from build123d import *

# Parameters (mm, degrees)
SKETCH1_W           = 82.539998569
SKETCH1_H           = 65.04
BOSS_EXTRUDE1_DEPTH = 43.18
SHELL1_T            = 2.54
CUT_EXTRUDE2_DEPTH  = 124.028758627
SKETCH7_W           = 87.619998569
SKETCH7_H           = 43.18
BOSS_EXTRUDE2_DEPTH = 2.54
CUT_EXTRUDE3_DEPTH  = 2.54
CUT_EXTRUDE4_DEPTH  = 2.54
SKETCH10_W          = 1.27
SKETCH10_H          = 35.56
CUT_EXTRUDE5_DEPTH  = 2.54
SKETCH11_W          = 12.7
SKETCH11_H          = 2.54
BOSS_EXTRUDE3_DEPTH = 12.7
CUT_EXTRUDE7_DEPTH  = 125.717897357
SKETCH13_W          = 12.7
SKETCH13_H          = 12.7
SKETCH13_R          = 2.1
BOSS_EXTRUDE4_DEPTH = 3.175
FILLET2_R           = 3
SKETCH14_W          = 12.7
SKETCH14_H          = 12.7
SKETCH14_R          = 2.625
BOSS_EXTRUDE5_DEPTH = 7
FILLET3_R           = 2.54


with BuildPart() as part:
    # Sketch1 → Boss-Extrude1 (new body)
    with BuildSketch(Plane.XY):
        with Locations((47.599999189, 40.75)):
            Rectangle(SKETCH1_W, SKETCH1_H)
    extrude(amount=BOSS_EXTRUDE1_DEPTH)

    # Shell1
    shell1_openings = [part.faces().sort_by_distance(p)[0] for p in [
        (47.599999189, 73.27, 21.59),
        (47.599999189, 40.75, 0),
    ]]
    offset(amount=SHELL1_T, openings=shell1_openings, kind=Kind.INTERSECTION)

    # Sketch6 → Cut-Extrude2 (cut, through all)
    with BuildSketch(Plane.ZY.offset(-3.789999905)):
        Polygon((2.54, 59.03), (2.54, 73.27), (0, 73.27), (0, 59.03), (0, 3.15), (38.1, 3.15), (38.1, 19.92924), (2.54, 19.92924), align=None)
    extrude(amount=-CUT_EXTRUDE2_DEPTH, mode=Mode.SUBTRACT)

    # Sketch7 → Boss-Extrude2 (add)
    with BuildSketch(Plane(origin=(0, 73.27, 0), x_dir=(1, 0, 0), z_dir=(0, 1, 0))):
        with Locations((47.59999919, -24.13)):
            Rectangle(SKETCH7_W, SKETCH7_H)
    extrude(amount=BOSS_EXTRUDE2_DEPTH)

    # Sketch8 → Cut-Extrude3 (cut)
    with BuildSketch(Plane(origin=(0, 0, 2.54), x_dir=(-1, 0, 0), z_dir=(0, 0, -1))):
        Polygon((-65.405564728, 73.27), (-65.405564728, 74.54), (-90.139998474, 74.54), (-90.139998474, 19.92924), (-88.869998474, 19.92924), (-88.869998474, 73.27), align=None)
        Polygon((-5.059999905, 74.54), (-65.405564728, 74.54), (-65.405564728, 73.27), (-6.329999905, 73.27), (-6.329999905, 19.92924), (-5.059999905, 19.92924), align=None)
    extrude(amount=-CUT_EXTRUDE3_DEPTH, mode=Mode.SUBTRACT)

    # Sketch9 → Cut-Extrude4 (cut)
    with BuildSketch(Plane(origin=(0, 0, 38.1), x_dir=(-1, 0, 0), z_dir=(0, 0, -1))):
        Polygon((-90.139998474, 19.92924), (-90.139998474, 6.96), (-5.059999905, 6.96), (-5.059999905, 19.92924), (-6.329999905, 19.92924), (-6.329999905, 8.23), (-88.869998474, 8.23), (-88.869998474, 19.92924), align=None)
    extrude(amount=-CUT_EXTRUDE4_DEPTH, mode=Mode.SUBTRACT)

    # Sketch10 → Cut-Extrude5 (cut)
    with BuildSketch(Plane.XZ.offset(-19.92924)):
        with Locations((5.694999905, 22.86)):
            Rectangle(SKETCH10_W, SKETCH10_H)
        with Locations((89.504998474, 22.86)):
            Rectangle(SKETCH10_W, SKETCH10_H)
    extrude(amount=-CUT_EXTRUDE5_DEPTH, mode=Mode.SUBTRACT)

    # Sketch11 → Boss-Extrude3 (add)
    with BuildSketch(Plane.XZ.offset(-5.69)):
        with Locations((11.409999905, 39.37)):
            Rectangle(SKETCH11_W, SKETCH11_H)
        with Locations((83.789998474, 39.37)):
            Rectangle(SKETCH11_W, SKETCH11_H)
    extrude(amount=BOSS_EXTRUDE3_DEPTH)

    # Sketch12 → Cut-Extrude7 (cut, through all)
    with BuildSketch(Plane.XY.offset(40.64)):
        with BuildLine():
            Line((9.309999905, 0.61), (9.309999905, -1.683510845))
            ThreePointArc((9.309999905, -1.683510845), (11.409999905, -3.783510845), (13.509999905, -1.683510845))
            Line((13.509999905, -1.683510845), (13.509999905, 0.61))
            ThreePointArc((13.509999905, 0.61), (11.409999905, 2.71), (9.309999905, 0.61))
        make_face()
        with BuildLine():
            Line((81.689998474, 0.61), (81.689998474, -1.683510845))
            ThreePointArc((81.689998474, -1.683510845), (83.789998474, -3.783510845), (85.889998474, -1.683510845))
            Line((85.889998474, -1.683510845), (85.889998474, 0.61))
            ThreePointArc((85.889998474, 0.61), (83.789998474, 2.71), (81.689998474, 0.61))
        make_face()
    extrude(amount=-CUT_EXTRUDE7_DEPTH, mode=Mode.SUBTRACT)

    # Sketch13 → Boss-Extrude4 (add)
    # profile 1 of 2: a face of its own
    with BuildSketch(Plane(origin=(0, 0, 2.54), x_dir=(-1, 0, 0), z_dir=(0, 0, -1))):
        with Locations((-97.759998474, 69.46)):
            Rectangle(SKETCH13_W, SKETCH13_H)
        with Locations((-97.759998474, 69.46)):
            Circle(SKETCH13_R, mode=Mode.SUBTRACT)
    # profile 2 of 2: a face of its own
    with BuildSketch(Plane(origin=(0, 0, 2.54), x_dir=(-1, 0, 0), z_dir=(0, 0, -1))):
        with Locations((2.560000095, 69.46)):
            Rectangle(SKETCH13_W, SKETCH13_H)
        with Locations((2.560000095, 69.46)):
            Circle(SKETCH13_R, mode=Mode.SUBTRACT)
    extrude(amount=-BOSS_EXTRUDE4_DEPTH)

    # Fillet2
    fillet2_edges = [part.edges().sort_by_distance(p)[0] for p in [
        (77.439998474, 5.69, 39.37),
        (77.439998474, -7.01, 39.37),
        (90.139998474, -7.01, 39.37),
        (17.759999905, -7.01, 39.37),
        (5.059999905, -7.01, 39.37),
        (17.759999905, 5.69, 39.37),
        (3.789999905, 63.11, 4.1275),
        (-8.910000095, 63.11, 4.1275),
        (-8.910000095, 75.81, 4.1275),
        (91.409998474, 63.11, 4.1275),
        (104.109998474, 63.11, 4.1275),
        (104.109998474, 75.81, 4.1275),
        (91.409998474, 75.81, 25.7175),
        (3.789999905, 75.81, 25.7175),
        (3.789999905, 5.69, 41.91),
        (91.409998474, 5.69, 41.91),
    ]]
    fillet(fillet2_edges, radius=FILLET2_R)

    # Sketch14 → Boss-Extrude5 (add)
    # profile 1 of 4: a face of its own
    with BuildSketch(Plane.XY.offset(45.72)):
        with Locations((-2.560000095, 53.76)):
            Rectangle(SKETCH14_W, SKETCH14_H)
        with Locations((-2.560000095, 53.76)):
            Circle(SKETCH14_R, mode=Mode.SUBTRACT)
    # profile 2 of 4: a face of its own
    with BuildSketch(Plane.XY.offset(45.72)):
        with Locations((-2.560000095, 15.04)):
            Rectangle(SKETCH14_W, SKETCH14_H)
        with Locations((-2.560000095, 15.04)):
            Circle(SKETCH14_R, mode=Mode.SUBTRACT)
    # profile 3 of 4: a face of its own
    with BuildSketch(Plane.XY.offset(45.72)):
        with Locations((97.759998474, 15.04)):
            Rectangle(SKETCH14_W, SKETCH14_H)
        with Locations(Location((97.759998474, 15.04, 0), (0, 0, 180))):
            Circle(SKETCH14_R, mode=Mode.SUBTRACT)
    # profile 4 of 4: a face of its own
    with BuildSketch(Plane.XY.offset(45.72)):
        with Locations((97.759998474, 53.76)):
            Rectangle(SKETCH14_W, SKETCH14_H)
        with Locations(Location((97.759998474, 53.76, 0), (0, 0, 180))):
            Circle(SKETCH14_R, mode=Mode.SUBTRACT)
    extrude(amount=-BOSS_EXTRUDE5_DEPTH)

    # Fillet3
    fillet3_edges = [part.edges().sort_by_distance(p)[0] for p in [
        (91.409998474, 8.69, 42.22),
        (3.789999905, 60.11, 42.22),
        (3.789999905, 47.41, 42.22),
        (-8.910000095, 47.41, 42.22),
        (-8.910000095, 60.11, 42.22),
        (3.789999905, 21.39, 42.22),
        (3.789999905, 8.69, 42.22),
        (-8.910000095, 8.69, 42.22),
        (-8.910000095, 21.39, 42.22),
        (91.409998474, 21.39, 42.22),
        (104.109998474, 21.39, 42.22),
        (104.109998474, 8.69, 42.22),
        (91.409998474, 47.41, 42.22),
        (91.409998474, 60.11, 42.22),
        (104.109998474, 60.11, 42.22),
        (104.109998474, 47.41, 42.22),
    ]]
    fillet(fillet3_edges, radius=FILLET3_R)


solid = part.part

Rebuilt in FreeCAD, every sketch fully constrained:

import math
import FreeCAD as App
import Part
import Sketcher

V = App.Vector
Q = App.Units.Quantity


def edges_at(feature, points):
    """Names of the edges that pass closest to the given points."""
    edges = feature.Shape.Edges
    near = lambda p: min(range(len(edges)), key=lambda i: edges[i].distToShape(Part.Vertex(*p))[0])
    return sorted({f"Edge{near(p) + 1}" for p in points})


def faces_at(feature, points):
    """Names of the faces that lie closest to the given points."""
    faces = feature.Shape.Faces
    near = lambda p: min(range(len(faces)), key=lambda i: faces[i].distToShape(Part.Vertex(*p))[0])
    return sorted({f"Face{near(p) + 1}" for p in points})


def add_polygon(sketch, points):
    """Adds a closed chain of lines whose ends are joined by coincident constraints."""
    first, n = sketch.GeometryCount, len(points)
    for a, b in zip(points, points[1:] + points[:1]):
        sketch.addGeometry(Part.LineSegment(App.Vector(*a, 0), App.Vector(*b, 0)), False)
    for i in range(n):
        sketch.addConstraint(Sketcher.Constraint("Coincident", first + i, 2, first + (i + 1) % n, 1))

doc = App.newDocument("Part")
body = doc.addObject("PartDesign::Body", "Body")

sketch1 = body.newObject("Sketcher::SketchObject", "Sketch")
sketch1.AttachmentSupport = (doc.getObject("XY_Plane"), [""])
sketch1.MapMode = "FlatFace"
add_polygon(sketch1, [(6, 73), (6, 8), (89, 8), (89, 73)])
sketch1.addConstraint(Sketcher.Constraint("Vertical", 0))
sketch1.addConstraint(Sketcher.Constraint("Horizontal", 1))
sketch1.addConstraint(Sketcher.Constraint("Vertical", 2))
sketch1.addConstraint(Sketcher.Constraint("Horizontal", 3))
sketch1.addConstraint(Sketcher.Constraint("DistanceX", 1, 1, 1, 2, Q("82.539999 mm")))
sketch1.addConstraint(Sketcher.Constraint("DistanceY", 0, 2, 0, 1, Q("65.04 mm")))
sketch1.addConstraint(Sketcher.Constraint("DistanceX", -1, 1, 0, 2, Q("6.33 mm")))
sketch1.addConstraint(Sketcher.Constraint("DistanceY", -1, 1, 0, 2, Q("8.23 mm")))
pad1 = body.newObject("PartDesign::Pad", "Pad")
pad1.Profile = sketch1
pad1.Length = Q("1.7 in")
doc.recompute()

thickness = body.newObject("PartDesign::Thickness", "Thickness")
thickness.Base = (pad1, faces_at(pad1, [(47.6, 73.27, 21.59), (47.6, 40.75, 0)]))
thickness.Value = Q("0.1 in")
thickness.Reversed = False
thickness.Join = "Intersection"

sketch2 = body.newObject("Sketcher::SketchObject", "Sketch001")
sketch2.AttachmentSupport = (doc.getObject("YZ_Plane"), [""])
sketch2.MapMode = "FlatFace"
sketch2.AttachmentOffset = App.Placement(V(0, 0, 3.79), App.Rotation())
add_polygon(sketch2, [(73.3, 2.5), (73.3, 0), (3.1, 0), (3.1, 38.1), (19.9, 38.1), (19.9, 2.5)])
sketch2.addConstraint(Sketcher.Constraint("Vertical", 0))
sketch2.addConstraint(Sketcher.Constraint("Horizontal", 1))
sketch2.addConstraint(Sketcher.Constraint("Vertical", 2))
sketch2.addConstraint(Sketcher.Constraint("Horizontal", 3))
sketch2.addConstraint(Sketcher.Constraint("Vertical", 4))
sketch2.addConstraint(Sketcher.Constraint("Horizontal", 5))
sketch2.addConstraint(Sketcher.Constraint("PointOnObject", 0, 2, -1))
sketch2.addConstraint(Sketcher.Constraint("DistanceY", 0, 2, 0, 1, Q("0.1 in")))
sketch2.addConstraint(Sketcher.Constraint("DistanceY", 2, 1, 2, 2, Q("1.5 in")))
sketch2.addConstraint(Sketcher.Constraint("DistanceX", 3, 1, 3, 2, Q("0.6606 in")))
sketch2.addConstraint(Sketcher.Constraint("DistanceX", 1, 2, 1, 1, Q("70.12 mm")))
sketch2.addConstraint(Sketcher.Constraint("DistanceX", -1, 1, 0, 2, Q("73.27 mm")))
pocket1 = body.newObject("PartDesign::Pocket", "Pocket")
pocket1.Profile = sketch2
pocket1.Type = "ThroughAll"
pocket1.Reversed = True

sketch3 = body.newObject("Sketcher::SketchObject", "Sketch002")
sketch3.AttachmentSupport = (doc.getObject("XZ_Plane"), [""])
sketch3.MapMode = "FlatFace"
sketch3.AttachmentOffset = App.Placement(V(0, 0, -73.27), App.Rotation())
add_polygon(sketch3, [(4, 3), (4, 46), (91, 46), (91, 3)])
sketch3.addConstraint(Sketcher.Constraint("Vertical", 0))
sketch3.addConstraint(Sketcher.Constraint("Horizontal", 1))
sketch3.addConstraint(Sketcher.Constraint("Vertical", 2))
sketch3.addConstraint(Sketcher.Constraint("Horizontal", 3))
sketch3.addConstraint(Sketcher.Constraint("DistanceY", 0, 1, 0, 2, Q("1.7 in")))
sketch3.addConstraint(Sketcher.Constraint("DistanceY", -1, 1, 0, 2, Q("1.8 in")))
sketch3.addConstraint(Sketcher.Constraint("DistanceX", 1, 1, 1, 2, Q("87.619999 mm")))
sketch3.addConstraint(Sketcher.Constraint("DistanceX", -1, 1, 0, 2, Q("3.79 mm")))
pad2 = body.newObject("PartDesign::Pad", "Pad001")
pad2.Profile = sketch3
pad2.Length = Q("0.1 in")
pad2.Reversed = True

sketch4 = body.newObject("Sketcher::SketchObject", "Sketch003")
sketch4.AttachmentSupport = (doc.getObject("XY_Plane"), [""])
sketch4.MapMode = "FlatFace"
sketch4.AttachmentOffset = App.Placement(V(0, 0, 0.1 * 25.4), App.Rotation())
add_polygon(sketch4, [(90.1, 74.5), (90.1, 19.9), (88.9, 19.9), (88.9, 73.3), (6.3, 73.3), (6.3, 19.9), (5.1, 19.9), (5.1, 74.5)])
sketch4.addConstraint(Sketcher.Constraint("Vertical", 0))
sketch4.addConstraint(Sketcher.Constraint("Horizontal", 1))
sketch4.addConstraint(Sketcher.Constraint("Vertical", 2))
sketch4.addConstraint(Sketcher.Constraint("Horizontal", 3))
sketch4.addConstraint(Sketcher.Constraint("Vertical", 4))
sketch4.addConstraint(Sketcher.Constraint("Horizontal", 5))
sketch4.addConstraint(Sketcher.Constraint("Vertical", 6))
sketch4.addConstraint(Sketcher.Constraint("Horizontal", 7))
sketch4.addConstraint(Sketcher.Constraint("Horizontal", 1, 2, 4, 2))
sketch4.addConstraint(Sketcher.Constraint("Equal", 1, 5))
sketch4.addConstraint(Sketcher.Constraint("DistanceX", 1, 2, 1, 1, Q("0.05 in")))
sketch4.addConstraint(Sketcher.Constraint("DistanceY", 3, 2, 6, 2, Q("0.05 in")))
sketch4.addConstraint(Sketcher.Constraint("DistanceX", 3, 2, 3, 1, Q("82.539999 mm")))
sketch4.addConstraint(Sketcher.Constraint("DistanceY", 0, 2, 0, 1, Q("54.61076 mm")))
sketch4.addConstraint(Sketcher.Constraint("DistanceX", -1, 1, 0, 2, Q("90.139998 mm")))
sketch4.addConstraint(Sketcher.Constraint("DistanceY", -1, 1, 2, 2, Q("73.27 mm")))
pocket2 = body.newObject("PartDesign::Pocket", "Pocket001")
pocket2.Profile = sketch4
pocket2.Length = Q("0.1 in")
pocket2.Reversed = True

sketch5 = body.newObject("Sketcher::SketchObject", "Sketch004")
sketch5.AttachmentSupport = (doc.getObject("XY_Plane"), [""])
sketch5.MapMode = "FlatFace"
sketch5.AttachmentOffset = App.Placement(V(0, 0, 1.5 * 25.4), App.Rotation())
add_polygon(sketch5, [(90.1, 19.9), (90.1, 7), (5.1, 7), (5.1, 19.9), (6.3, 19.9), (6.3, 8.2), (88.9, 8.2), (88.9, 19.9)])
sketch5.addConstraint(Sketcher.Constraint("Vertical", 0))
sketch5.addConstraint(Sketcher.Constraint("Horizontal", 1))
sketch5.addConstraint(Sketcher.Constraint("Vertical", 2))
sketch5.addConstraint(Sketcher.Constraint("Horizontal", 3))
sketch5.addConstraint(Sketcher.Constraint("Vertical", 4))
sketch5.addConstraint(Sketcher.Constraint("Horizontal", 5))
sketch5.addConstraint(Sketcher.Constraint("Vertical", 6))
sketch5.addConstraint(Sketcher.Constraint("Horizontal", 7))
sketch5.addConstraint(Sketcher.Constraint("Horizontal", 3, 2, 6, 2))
sketch5.addConstraint(Sketcher.Constraint("Equal", 3, 7))
sketch5.addConstraint(Sketcher.Constraint("DistanceX", 3, 1, 3, 2, Q("0.05 in")))
sketch5.addConstraint(Sketcher.Constraint("DistanceY", 1, 2, 4, 2, Q("0.05 in")))
sketch5.addConstraint(Sketcher.Constraint("DistanceY", 0, 2, 0, 1, Q("0.5106 in")))
sketch5.addConstraint(Sketcher.Constraint("DistanceX", 1, 2, 1, 1, Q("85.079999 mm")))
sketch5.addConstraint(Sketcher.Constraint("DistanceX", -1, 1, 0, 2, Q("90.139998 mm")))
sketch5.addConstraint(Sketcher.Constraint("DistanceY", -1, 1, 0, 2, Q("6.96 mm")))
pocket3 = body.newObject("PartDesign::Pocket", "Pocket002")
pocket3.Profile = sketch5
pocket3.Length = Q("0.1 in")
pocket3.Reversed = True

sketch6 = body.newObject("Sketcher::SketchObject", "Sketch005")
sketch6.AttachmentSupport = (doc.getObject("XZ_Plane"), [""])
sketch6.MapMode = "FlatFace"
sketch6.AttachmentOffset = App.Placement(V(0, 0, -19.92924), App.Rotation())
add_polygon(sketch6, [(5.1, 40.6), (5.1, 5.1), (6.3, 5.1), (6.3, 40.6)])
add_polygon(sketch6, [(88.9, 40.6), (88.9, 5.1), (90.1, 5.1), (90.1, 40.6)])
sketch6.addConstraint(Sketcher.Constraint("Vertical", 0))
sketch6.addConstraint(Sketcher.Constraint("Horizontal", 1))
sketch6.addConstraint(Sketcher.Constraint("Vertical", 2))
sketch6.addConstraint(Sketcher.Constraint("Horizontal", 3))
sketch6.addConstraint(Sketcher.Constraint("Vertical", 4))
sketch6.addConstraint(Sketcher.Constraint("Horizontal", 5))
sketch6.addConstraint(Sketcher.Constraint("Vertical", 6))
sketch6.addConstraint(Sketcher.Constraint("Horizontal", 7))
sketch6.addConstraint(Sketcher.Constraint("Horizontal", 1, 2, 4, 2))
sketch6.addConstraint(Sketcher.Constraint("Horizontal", 3, 2, 6, 2))
sketch6.addConstraint(Sketcher.Constraint("Equal", 3, 5))
sketch6.addConstraint(Sketcher.Constraint("DistanceY", 0, 2, 0, 1, Q("1.4 in")))
sketch6.addConstraint(Sketcher.Constraint("DistanceX", 1, 1, 1, 2, Q("0.05 in")))
sketch6.addConstraint(Sketcher.Constraint("DistanceY", -1, 1, 0, 2, Q("0.2 in")))
sketch6.addConstraint(Sketcher.Constraint("DistanceX", -1, 1, 0, 2, Q("5.06 mm")))
sketch6.addConstraint(Sketcher.Constraint("DistanceX", -1, 1, 4, 2, Q("88.869998 mm")))
pocket4 = body.newObject("PartDesign::Pocket", "Pocket003")
pocket4.Profile = sketch6
pocket4.Length = Q("0.1 in")

sketch7 = body.newObject("Sketcher::SketchObject", "Sketch006")
sketch7.AttachmentSupport = (doc.getObject("XZ_Plane"), [""])
sketch7.MapMode = "FlatFace"
sketch7.AttachmentOffset = App.Placement(V(0, 0, -5.69), App.Rotation())
add_polygon(sketch7, [(5.1, 40.6), (5.1, 38.1), (17.8, 38.1), (17.8, 40.6)])
add_polygon(sketch7, [(77.4, 40.6), (77.4, 38.1), (90.1, 38.1), (90.1, 40.6)])
sketch7.addConstraint(Sketcher.Constraint("Vertical", 0))
sketch7.addConstraint(Sketcher.Constraint("Horizontal", 1))
sketch7.addConstraint(Sketcher.Constraint("Vertical", 2))
sketch7.addConstraint(Sketcher.Constraint("Horizontal", 3))
sketch7.addConstraint(Sketcher.Constraint("Vertical", 4))
sketch7.addConstraint(Sketcher.Constraint("Horizontal", 5))
sketch7.addConstraint(Sketcher.Constraint("Vertical", 6))
sketch7.addConstraint(Sketcher.Constraint("Horizontal", 7))
sketch7.addConstraint(Sketcher.Constraint("Horizontal", 1, 2, 4, 2))
sketch7.addConstraint(Sketcher.Constraint("Horizontal", 3, 2, 6, 2))
sketch7.addConstraint(Sketcher.Constraint("Equal", 3, 5))
sketch7.addConstraint(Sketcher.Constraint("DistanceX", 1, 1, 1, 2, Q("0.5 in")))
sketch7.addConstraint(Sketcher.Constraint("DistanceY", 0, 2, 0, 1, Q("0.1 in")))
sketch7.addConstraint(Sketcher.Constraint("DistanceY", -1, 1, 0, 2, Q("1.5 in")))
sketch7.addConstraint(Sketcher.Constraint("DistanceX", -1, 1, 0, 2, Q("5.06 mm")))
sketch7.addConstraint(Sketcher.Constraint("DistanceX", -1, 1, 4, 2, Q("77.439998 mm")))
pad3 = body.newObject("PartDesign::Pad", "Pad002")
pad3.Profile = sketch7
pad3.Length = Q("0.5 in")

sketch8 = body.newObject("Sketcher::SketchObject", "Sketch007")
sketch8.AttachmentSupport = (doc.getObject("XY_Plane"), [""])
sketch8.MapMode = "FlatFace"
sketch8.AttachmentOffset = App.Placement(V(0, 0, 1.6 * 25.4), App.Rotation())
sketch8.addGeometry(Part.LineSegment(V(9.3, 0.6, 0), V(9.3, -1.7, 0)), False)
sketch8.addGeometry(Part.ArcOfCircle(Part.Circle(V(11.4, -1.7, 0), V(0, 0, 1), 2.1), math.radians(180), math.radians(360)), False)
sketch8.addGeometry(Part.LineSegment(V(13.5, -1.7, 0), V(13.5, 0.6, 0)), False)
sketch8.addGeometry(Part.ArcOfCircle(Part.Circle(V(11.4, 0.6, 0), V(0, 0, 1), 2.1), math.radians(0), math.radians(180)), False)
sketch8.addGeometry(Part.LineSegment(V(81.7, 0.6, 0), V(81.7, -1.7, 0)), False)
sketch8.addGeometry(Part.ArcOfCircle(Part.Circle(V(83.8, -1.7, 0), V(0, 0, 1), 2.1), math.radians(180), math.radians(360)), False)
sketch8.addGeometry(Part.LineSegment(V(85.9, -1.7, 0), V(85.9, 0.6, 0)), False)
sketch8.addGeometry(Part.ArcOfCircle(Part.Circle(V(83.8, 0.6, 0), V(0, 0, 1), 2.1), math.radians(0), math.radians(180)), False)
sketch8.addConstraint(Sketcher.Constraint("Tangent", 0, 2, 1, 1))
sketch8.addConstraint(Sketcher.Constraint("Tangent", 1, 2, 2, 1))
sketch8.addConstraint(Sketcher.Constraint("Tangent", 2, 2, 3, 1))
sketch8.addConstraint(Sketcher.Constraint("Tangent", 3, 2, 0, 1))
sketch8.addConstraint(Sketcher.Constraint("Tangent", 4, 2, 5, 1))
sketch8.addConstraint(Sketcher.Constraint("Tangent", 5, 2, 6, 1))
sketch8.addConstraint(Sketcher.Constraint("Tangent", 6, 2, 7, 1))
sketch8.addConstraint(Sketcher.Constraint("Tangent", 7, 2, 4, 1))
sketch8.addConstraint(Sketcher.Constraint("Vertical", 0))
sketch8.addConstraint(Sketcher.Constraint("Vertical", 2))
sketch8.addConstraint(Sketcher.Constraint("Vertical", 4))
sketch8.addConstraint(Sketcher.Constraint("Vertical", 6))
sketch8.addConstraint(Sketcher.Constraint("Equal", 3, 5))
sketch8.addConstraint(Sketcher.Constraint("Horizontal", 1, 3, 5, 3))
sketch8.addConstraint(Sketcher.Constraint("Horizontal", 3, 3, 7, 3))
sketch8.addConstraint(Sketcher.Constraint("Radius", 1, Q("2.1 mm")))
sketch8.addConstraint(Sketcher.Constraint("DistanceY", 0, 2, 0, 1, Q("2.293511 mm")))
sketch8.addConstraint(Sketcher.Constraint("DistanceX", -1, 1, 1, 3, Q("11.41 mm")))
sketch8.addConstraint(Sketcher.Constraint("DistanceY", -1, 1, 3, 3, Q("0.61 mm")))
sketch8.addConstraint(Sketcher.Constraint("DistanceX", -1, 1, 5, 3, Q("83.789998 mm")))
pocket5 = body.newObject("PartDesign::Pocket", "Pocket004")
pocket5.Profile = sketch8
pocket5.Type = "ThroughAll"

sketch9 = body.newObject("Sketcher::SketchObject", "Sketch008")
sketch9.AttachmentSupport = (doc.getObject("XY_Plane"), [""])
sketch9.MapMode = "FlatFace"
sketch9.AttachmentOffset = App.Placement(V(0, 0, 0.1 * 25.4), App.Rotation())
add_polygon(sketch9, [(104.1, 75.8), (104.1, 63.1), (91.4, 63.1), (91.4, 75.8)])
sketch9.addGeometry(Part.Circle(V(97.8, 69.5, 0), V(0, 0, 1), 2.1), False)
add_polygon(sketch9, [(3.8, 75.8), (3.8, 63.1), (-8.9, 63.1), (-8.9, 75.8)])
sketch9.addGeometry(Part.Circle(V(-2.6, 69.5, 0), V(0, 0, 1), 2.1), False)
sketch9.addConstraint(Sketcher.Constraint("Vertical", 0))
sketch9.addConstraint(Sketcher.Constraint("Horizontal", 1))
sketch9.addConstraint(Sketcher.Constraint("Vertical", 2))
sketch9.addConstraint(Sketcher.Constraint("Horizontal", 3))
sketch9.addConstraint(Sketcher.Constraint("Vertical", 5))
sketch9.addConstraint(Sketcher.Constraint("Horizontal", 6))
sketch9.addConstraint(Sketcher.Constraint("Vertical", 7))
sketch9.addConstraint(Sketcher.Constraint("Horizontal", 8))
sketch9.addConstraint(Sketcher.Constraint("Equal", 4, 9))
sketch9.addConstraint(Sketcher.Constraint("Horizontal", 4, 3, 9, 3))
sketch9.addConstraint(Sketcher.Constraint("Horizontal", 1, 2, 5, 2))
sketch9.addConstraint(Sketcher.Constraint("Horizontal", 3, 2, 7, 2))
sketch9.addConstraint(Sketcher.Constraint("Equal", 3, 6))
sketch9.addConstraint(Sketcher.Constraint("Equal", 8, 0))
sketch9.addConstraint(Sketcher.Constraint("DistanceX", 1, 2, 1, 1, Q("0.5 in")))
sketch9.addConstraint(Sketcher.Constraint("Diameter", 4, Q("4.2 mm")))
sketch9.addConstraint(Sketcher.Constraint("DistanceX", 4, 3, 0, 2, Q("0.25 in")))
sketch9.addConstraint(Sketcher.Constraint("DistanceY", 0, 2, 4, 3, Q("0.25 in")))
sketch9.addConstraint(Sketcher.Constraint("DistanceX", 9, 3, 5, 2, Q("0.25 in")))
sketch9.addConstraint(Sketcher.Constraint("DistanceX", -1, 1, 4, 3, Q("97.759998 mm")))
sketch9.addConstraint(Sketcher.Constraint("DistanceY", -1, 1, 4, 3, Q("69.46 mm")))
sketch9.addConstraint(Sketcher.Constraint("DistanceX", 9, 3, -1, 1, Q("2.56 mm")))
pad4 = body.newObject("PartDesign::Pad", "Pad003")
pad4.Profile = sketch9
pad4.Length = Q("0.125 in")
doc.recompute()

fillet = body.newObject("PartDesign::Fillet", "Fillet")
fillet.Base = (pad4, edges_at(pad4, [
    (77.44, 5.69, 39.37),
    (77.44, -7.01, 39.37),
    (90.14, -7.01, 39.37),
    (17.76, -7.01, 39.37),
    (5.06, -7.01, 39.37),
    (17.76, 5.69, 39.37),
    (3.79, 63.11, 4.128),
    (-8.91, 63.11, 4.128),
    (-8.91, 75.81, 4.128),
    (91.41, 63.11, 4.128),
    (104.11, 63.11, 4.128),
    (104.11, 75.81, 4.128),
    (91.41, 75.81, 25.718),
    (3.79, 75.81, 25.718),
    (3.79, 5.69, 41.91),
    (91.41, 5.69, 41.91),
]))
fillet.Radius = 3

sketch10 = body.newObject("Sketcher::SketchObject", "Sketch009")
sketch10.AttachmentSupport = (doc.getObject("XY_Plane"), [""])
sketch10.MapMode = "FlatFace"
sketch10.AttachmentOffset = App.Placement(V(0, 0, 1.8 * 25.4), App.Rotation())
add_polygon(sketch10, [(-8.9, 60.1), (-8.9, 47.4), (3.8, 47.4), (3.8, 60.1)])
sketch10.addGeometry(Part.Circle(V(-2.6, 53.8, 0), V(0, 0, 1), 2.6), False)
add_polygon(sketch10, [(-8.9, 21.4), (-8.9, 8.7), (3.8, 8.7), (3.8, 21.4)])
sketch10.addGeometry(Part.Circle(V(-2.6, 15, 0), V(0, 0, 1), 2.6), False)
add_polygon(sketch10, [(91.4, 21.4), (91.4, 8.7), (104.1, 8.7), (104.1, 21.4)])
sketch10.addGeometry(Part.Circle(V(97.8, 15, 0), V(0, 0, 1), 2.6), False)
add_polygon(sketch10, [(91.4, 60.1), (91.4, 47.4), (104.1, 47.4), (104.1, 60.1)])
sketch10.addGeometry(Part.Circle(V(97.8, 53.8, 0), V(0, 0, 1), 2.6), False)
sketch10.addConstraint(Sketcher.Constraint("Vertical", 0))
sketch10.addConstraint(Sketcher.Constraint("Horizontal", 1))
sketch10.addConstraint(Sketcher.Constraint("Vertical", 2))
sketch10.addConstraint(Sketcher.Constraint("Horizontal", 3))
sketch10.addConstraint(Sketcher.Constraint("Vertical", 5))
sketch10.addConstraint(Sketcher.Constraint("Horizontal", 6))
sketch10.addConstraint(Sketcher.Constraint("Vertical", 7))
sketch10.addConstraint(Sketcher.Constraint("Horizontal", 8))
sketch10.addConstraint(Sketcher.Constraint("Vertical", 10))
sketch10.addConstraint(Sketcher.Constraint("Horizontal", 11))
sketch10.addConstraint(Sketcher.Constraint("Vertical", 12))
sketch10.addConstraint(Sketcher.Constraint("Horizontal", 13))
sketch10.addConstraint(Sketcher.Constraint("Vertical", 15))
sketch10.addConstraint(Sketcher.Constraint("Horizontal", 16))
sketch10.addConstraint(Sketcher.Constraint("Vertical", 17))
sketch10.addConstraint(Sketcher.Constraint("Horizontal", 18))
sketch10.addConstraint(Sketcher.Constraint("Equal", 4, 9))
sketch10.addConstraint(Sketcher.Constraint("Equal", 9, 14))
sketch10.addConstraint(Sketcher.Constraint("Equal", 14, 19))
sketch10.addConstraint(Sketcher.Constraint("Horizontal", 9, 3, 14, 3))
sketch10.addConstraint(Sketcher.Constraint("Horizontal", 4, 3, 19, 3))
sketch10.addConstraint(Sketcher.Constraint("Horizontal", 6, 2, 10, 2))
sketch10.addConstraint(Sketcher.Constraint("Horizontal", 8, 2, 12, 2))
sketch10.addConstraint(Sketcher.Constraint("Horizontal", 1, 2, 15, 2))
sketch10.addConstraint(Sketcher.Constraint("Horizontal", 3, 2, 17, 2))
sketch10.addConstraint(Sketcher.Constraint("Vertical", 4, 3, 9, 3))
sketch10.addConstraint(Sketcher.Constraint("Vertical", 14, 3, 19, 3))
sketch10.addConstraint(Sketcher.Constraint("Vertical", 3, 2, 5, 2))
sketch10.addConstraint(Sketcher.Constraint("Vertical", 2, 2, 6, 2))
sketch10.addConstraint(Sketcher.Constraint("Vertical", 13, 2, 15, 2))
sketch10.addConstraint(Sketcher.Constraint("Vertical", 12, 2, 16, 2))
sketch10.addConstraint(Sketcher.Constraint("Equal", 8, 11))
sketch10.addConstraint(Sketcher.Constraint("Equal", 18, 0))
sketch10.addConstraint(Sketcher.Constraint("Equal", 2, 5))
sketch10.addConstraint(Sketcher.Constraint("DistanceX", 1, 1, 1, 2, Q("0.5 in")))
sketch10.addConstraint(Sketcher.Constraint("Diameter", 4, Q("5.25 mm")))
sketch10.addConstraint(Sketcher.Constraint("DistanceX", 0, 2, 4, 3, Q("0.25 in")))
sketch10.addConstraint(Sketcher.Constraint("DistanceY", 0, 2, 4, 3, Q("0.25 in")))
sketch10.addConstraint(Sketcher.Constraint("DistanceY", 5, 2, 9, 3, Q("0.25 in")))
sketch10.addConstraint(Sketcher.Constraint("DistanceX", 10, 2, 14, 3, Q("0.25 in")))
sketch10.addConstraint(Sketcher.Constraint("DistanceX", 4, 3, -1, 1, Q("2.56 mm")))
sketch10.addConstraint(Sketcher.Constraint("DistanceY", -1, 1, 4, 3, Q("53.76 mm")))
sketch10.addConstraint(Sketcher.Constraint("DistanceY", -1, 1, 9, 3, Q("15.04 mm")))
sketch10.addConstraint(Sketcher.Constraint("DistanceX", -1, 1, 14, 3, Q("97.759998 mm")))
pad5 = body.newObject("PartDesign::Pad", "Pad004")
pad5.Profile = sketch10
pad5.Length = 7
pad5.Reversed = True
doc.recompute()

fillet2 = body.newObject("PartDesign::Fillet", "Fillet001")
fillet2.Base = (pad5, edges_at(pad5, [
    (91.41, 8.69, 42.22),
    (3.79, 60.11, 42.22),
    (3.79, 47.41, 42.22),
    (-8.91, 47.41, 42.22),
    (-8.91, 60.11, 42.22),
    (3.79, 21.39, 42.22),
    (3.79, 8.69, 42.22),
    (-8.91, 8.69, 42.22),
    (-8.91, 21.39, 42.22),
    (91.41, 21.39, 42.22),
    (104.11, 21.39, 42.22),
    (104.11, 8.69, 42.22),
    (91.41, 47.41, 42.22),
    (91.41, 60.11, 42.22),
    (104.11, 60.11, 42.22),
    (104.11, 47.41, 42.22),
]))
fillet2.Radius = Q("0.1 in")

doc.recompute()
